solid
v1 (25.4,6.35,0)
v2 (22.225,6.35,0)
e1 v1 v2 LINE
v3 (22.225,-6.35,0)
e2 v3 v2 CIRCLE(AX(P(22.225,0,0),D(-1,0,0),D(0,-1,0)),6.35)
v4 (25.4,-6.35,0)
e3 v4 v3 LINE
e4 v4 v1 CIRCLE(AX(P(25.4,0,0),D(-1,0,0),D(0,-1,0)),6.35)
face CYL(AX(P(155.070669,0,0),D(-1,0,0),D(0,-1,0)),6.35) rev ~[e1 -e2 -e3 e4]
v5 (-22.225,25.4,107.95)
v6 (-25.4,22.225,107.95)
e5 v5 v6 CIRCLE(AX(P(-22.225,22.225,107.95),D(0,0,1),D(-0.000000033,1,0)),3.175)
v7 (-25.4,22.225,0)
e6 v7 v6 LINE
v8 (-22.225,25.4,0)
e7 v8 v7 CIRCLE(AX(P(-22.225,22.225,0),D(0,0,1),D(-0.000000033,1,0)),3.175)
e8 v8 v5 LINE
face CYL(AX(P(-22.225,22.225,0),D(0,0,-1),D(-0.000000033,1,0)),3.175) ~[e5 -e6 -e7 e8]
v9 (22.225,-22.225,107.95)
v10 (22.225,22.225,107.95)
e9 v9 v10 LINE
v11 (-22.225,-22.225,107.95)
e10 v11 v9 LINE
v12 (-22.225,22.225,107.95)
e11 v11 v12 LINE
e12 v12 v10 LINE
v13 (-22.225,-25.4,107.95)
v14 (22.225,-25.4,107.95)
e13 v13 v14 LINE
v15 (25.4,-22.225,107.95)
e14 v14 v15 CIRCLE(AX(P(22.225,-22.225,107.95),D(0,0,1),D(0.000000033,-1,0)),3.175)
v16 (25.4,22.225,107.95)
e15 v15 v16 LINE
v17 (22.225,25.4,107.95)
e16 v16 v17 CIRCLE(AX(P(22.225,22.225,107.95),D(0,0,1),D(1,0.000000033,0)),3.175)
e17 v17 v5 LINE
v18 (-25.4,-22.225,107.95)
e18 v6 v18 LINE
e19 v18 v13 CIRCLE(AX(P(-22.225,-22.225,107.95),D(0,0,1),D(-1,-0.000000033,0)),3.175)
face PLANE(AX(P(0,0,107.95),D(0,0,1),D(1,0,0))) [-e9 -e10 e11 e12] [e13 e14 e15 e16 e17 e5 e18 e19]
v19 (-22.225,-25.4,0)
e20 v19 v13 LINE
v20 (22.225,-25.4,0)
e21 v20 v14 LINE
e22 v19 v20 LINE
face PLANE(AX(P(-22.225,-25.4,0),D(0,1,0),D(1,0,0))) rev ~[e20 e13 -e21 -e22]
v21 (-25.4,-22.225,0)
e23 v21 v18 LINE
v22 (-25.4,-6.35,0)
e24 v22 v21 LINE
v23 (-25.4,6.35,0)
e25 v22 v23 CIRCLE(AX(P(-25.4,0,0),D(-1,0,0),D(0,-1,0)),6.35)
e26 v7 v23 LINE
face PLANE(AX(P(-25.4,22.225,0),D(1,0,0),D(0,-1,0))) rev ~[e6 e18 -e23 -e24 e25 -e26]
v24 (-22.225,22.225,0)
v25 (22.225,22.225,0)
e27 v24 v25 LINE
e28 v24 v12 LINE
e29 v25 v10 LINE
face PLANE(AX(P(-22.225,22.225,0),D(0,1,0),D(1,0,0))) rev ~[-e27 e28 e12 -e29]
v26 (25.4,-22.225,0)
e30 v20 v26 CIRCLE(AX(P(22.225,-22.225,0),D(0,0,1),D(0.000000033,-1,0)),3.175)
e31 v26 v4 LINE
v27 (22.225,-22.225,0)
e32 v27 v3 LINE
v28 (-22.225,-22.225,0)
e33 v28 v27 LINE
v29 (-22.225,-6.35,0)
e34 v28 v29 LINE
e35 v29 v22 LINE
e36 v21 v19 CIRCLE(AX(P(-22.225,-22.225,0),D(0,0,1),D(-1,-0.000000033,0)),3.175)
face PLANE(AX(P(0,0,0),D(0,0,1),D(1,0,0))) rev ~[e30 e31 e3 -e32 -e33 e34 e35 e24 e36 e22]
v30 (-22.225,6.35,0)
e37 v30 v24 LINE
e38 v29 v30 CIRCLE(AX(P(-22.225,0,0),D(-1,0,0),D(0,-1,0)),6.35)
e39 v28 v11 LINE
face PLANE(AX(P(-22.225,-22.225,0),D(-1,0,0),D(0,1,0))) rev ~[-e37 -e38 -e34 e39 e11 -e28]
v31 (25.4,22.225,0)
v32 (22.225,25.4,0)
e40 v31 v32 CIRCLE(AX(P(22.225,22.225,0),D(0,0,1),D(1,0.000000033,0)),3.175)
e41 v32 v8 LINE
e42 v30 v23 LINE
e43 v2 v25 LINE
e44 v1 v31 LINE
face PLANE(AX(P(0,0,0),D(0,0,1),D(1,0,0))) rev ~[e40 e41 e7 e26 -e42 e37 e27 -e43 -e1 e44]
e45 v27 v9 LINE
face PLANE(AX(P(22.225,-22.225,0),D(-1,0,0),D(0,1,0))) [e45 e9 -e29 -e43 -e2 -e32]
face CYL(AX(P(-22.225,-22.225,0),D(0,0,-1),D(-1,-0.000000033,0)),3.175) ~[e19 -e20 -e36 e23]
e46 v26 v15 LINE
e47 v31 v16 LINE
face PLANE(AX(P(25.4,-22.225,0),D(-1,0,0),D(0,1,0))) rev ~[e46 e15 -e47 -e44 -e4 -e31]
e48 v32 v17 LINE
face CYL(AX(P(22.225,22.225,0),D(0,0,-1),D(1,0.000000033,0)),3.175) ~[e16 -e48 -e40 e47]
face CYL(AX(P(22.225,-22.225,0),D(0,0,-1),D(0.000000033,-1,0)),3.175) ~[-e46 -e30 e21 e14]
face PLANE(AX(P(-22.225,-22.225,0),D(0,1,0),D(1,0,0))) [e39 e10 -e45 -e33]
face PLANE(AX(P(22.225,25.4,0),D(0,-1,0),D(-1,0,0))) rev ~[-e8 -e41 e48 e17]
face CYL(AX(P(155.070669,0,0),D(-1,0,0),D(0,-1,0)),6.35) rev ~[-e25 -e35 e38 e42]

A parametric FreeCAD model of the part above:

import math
import FreeCAD as App
import Part
import Sketcher

V = App.Vector
Q = App.Units.Quantity


def add_polygon(sketch, points):
    """Adds a closed chain of lines whose ends are joined by coincident constraints."""
    first, n = sketch.GeometryCount, len(points)
    for a, b in zip(points, points[1:] + points[:1]):
        sketch.addGeometry(Part.LineSegment(App.Vector(*a, 0), App.Vector(*b, 0)), False)
    for i in range(n):
        sketch.addConstraint(Sketcher.Constraint("Coincident", first + i, 2, first + (i + 1) % n, 1))

doc = App.newDocument("Part")
body = doc.addObject("PartDesign::Body", "Body")

# Sketch on XY plane
sketch1 = body.newObject("Sketcher::SketchObject", "Sketch")
sketch1.AttachmentSupport = (doc.getObject("XY_Plane"), [""])
sketch1.MapMode = "FlatFace"
sketch1.addGeometry(Part.ArcOfCircle(Part.Circle(V(22.225, 22.225, 0), V(0, 0, 1), 3.175), math.radians(0.000002), math.radians(89.999998)), False)  # 0
sketch1.addGeometry(Part.LineSegment(V(22.225, 25.4, 0), V(-22.225, 25.4, 0)), False)  # 1
sketch1.addGeometry(Part.ArcOfCircle(Part.Circle(V(-22.225, 22.225, 0), V(0, 0, 1), 3.175), math.radians(90.000002), math.radians(179.999998)), False)  # 2
sketch1.addGeometry(Part.LineSegment(V(-25.4, 22.225, 0), V(-25.4, -22.225, 0)), False)  # 3
sketch1.addGeometry(Part.ArcOfCircle(Part.Circle(V(-22.225, -22.225, 0), V(0, 0, 1), 3.175), math.radians(-179.999998), math.radians(-90.000002)), False)  # 4
sketch1.addGeometry(Part.LineSegment(V(-22.225, -25.4, 0), V(22.225, -25.4, 0)), False)  # 5
sketch1.addGeometry(Part.ArcOfCircle(Part.Circle(V(22.225, -22.225, 0), V(0, 0, 1), 3.175), math.radians(-89.999998), math.radians(-0.000002)), False)  # 6
sketch1.addGeometry(Part.LineSegment(V(25.4, -22.225, 0), V(25.4, 22.225, 0)), False)  # 7
add_polygon(sketch1, [(22.225, -22.225), (-22.225, -22.225), (-22.225, 22.225), (22.225, 22.225)])  # lines 8-11
sketch1.addConstraint([
    Sketcher.Constraint("Tangent", 0, 2, 1, 1),
    Sketcher.Constraint("Tangent", 1, 2, 2, 1),
    Sketcher.Constraint("Tangent", 2, 2, 3, 1),
    Sketcher.Constraint("Tangent", 3, 2, 4, 1),
    Sketcher.Constraint("Tangent", 4, 2, 5, 1),
    Sketcher.Constraint("Tangent", 5, 2, 6, 1),
    Sketcher.Constraint("Tangent", 6, 2, 7, 1),
    Sketcher.Constraint("Tangent", 7, 2, 0, 1),
    Sketcher.Constraint("Horizontal", 1),
    Sketcher.Constraint("Vertical", 3),
    Sketcher.Constraint("Horizontal", 5),
    Sketcher.Constraint("Vertical", 7),
    Sketcher.Constraint("Horizontal", 8),
    Sketcher.Constraint("Vertical", 9),
    Sketcher.Constraint("Horizontal", 10),
    Sketcher.Constraint("Vertical", 11),
    Sketcher.Constraint("Coincident", 8, 2, 4, 3),
    Sketcher.Constraint("Coincident", 9, 2, 2, 3),
    Sketcher.Constraint("Coincident", 10, 2, 0, 3),
    Sketcher.Constraint("Equal", 4, 6),
    Sketcher.Constraint("Symmetric", 0, 3, 4, 3, -1, 1),
    Sketcher.Constraint("Equal", 10, 3),
    Sketcher.Constraint("DistanceY", -1, 1, 0, 2, Q("1 in")),
    Sketcher.Constraint("Radius", 0, Q("0.125 in")),
])
pad1 = body.newObject("PartDesign::Pad", "Pad")
pad1.Profile = sketch1
pad1.Length = Q("4.25 in")

# Sketch on YZ plane
sketch2 = body.newObject("Sketcher::SketchObject", "Sketch001")
sketch2.AttachmentSupport = (doc.getObject("YZ_Plane"), [""])
sketch2.MapMode = "FlatFace"
sketch2.AttachmentOffset = App.Placement(V(0, 0, 1 * 25.4), App.Rotation())
sketch2.addGeometry(Part.Circle(V(0, 0, 0), V(0, 0, 1), 6.35), False)
sketch2.addConstraint([
    Sketcher.Constraint("Coincident", 0, 3, -1, 1),
    Sketcher.Constraint("Diameter", 0, Q("0.5 in")),
])
doc.recompute()
hole = body.newObject("PartDesign::Hole", "Hole")
hole.Profile = sketch2
hole.ThreadType = "None"
hole.Diameter = Q("0.5 in")
hole.DepthType = "ThroughAll"

doc.recompute()
